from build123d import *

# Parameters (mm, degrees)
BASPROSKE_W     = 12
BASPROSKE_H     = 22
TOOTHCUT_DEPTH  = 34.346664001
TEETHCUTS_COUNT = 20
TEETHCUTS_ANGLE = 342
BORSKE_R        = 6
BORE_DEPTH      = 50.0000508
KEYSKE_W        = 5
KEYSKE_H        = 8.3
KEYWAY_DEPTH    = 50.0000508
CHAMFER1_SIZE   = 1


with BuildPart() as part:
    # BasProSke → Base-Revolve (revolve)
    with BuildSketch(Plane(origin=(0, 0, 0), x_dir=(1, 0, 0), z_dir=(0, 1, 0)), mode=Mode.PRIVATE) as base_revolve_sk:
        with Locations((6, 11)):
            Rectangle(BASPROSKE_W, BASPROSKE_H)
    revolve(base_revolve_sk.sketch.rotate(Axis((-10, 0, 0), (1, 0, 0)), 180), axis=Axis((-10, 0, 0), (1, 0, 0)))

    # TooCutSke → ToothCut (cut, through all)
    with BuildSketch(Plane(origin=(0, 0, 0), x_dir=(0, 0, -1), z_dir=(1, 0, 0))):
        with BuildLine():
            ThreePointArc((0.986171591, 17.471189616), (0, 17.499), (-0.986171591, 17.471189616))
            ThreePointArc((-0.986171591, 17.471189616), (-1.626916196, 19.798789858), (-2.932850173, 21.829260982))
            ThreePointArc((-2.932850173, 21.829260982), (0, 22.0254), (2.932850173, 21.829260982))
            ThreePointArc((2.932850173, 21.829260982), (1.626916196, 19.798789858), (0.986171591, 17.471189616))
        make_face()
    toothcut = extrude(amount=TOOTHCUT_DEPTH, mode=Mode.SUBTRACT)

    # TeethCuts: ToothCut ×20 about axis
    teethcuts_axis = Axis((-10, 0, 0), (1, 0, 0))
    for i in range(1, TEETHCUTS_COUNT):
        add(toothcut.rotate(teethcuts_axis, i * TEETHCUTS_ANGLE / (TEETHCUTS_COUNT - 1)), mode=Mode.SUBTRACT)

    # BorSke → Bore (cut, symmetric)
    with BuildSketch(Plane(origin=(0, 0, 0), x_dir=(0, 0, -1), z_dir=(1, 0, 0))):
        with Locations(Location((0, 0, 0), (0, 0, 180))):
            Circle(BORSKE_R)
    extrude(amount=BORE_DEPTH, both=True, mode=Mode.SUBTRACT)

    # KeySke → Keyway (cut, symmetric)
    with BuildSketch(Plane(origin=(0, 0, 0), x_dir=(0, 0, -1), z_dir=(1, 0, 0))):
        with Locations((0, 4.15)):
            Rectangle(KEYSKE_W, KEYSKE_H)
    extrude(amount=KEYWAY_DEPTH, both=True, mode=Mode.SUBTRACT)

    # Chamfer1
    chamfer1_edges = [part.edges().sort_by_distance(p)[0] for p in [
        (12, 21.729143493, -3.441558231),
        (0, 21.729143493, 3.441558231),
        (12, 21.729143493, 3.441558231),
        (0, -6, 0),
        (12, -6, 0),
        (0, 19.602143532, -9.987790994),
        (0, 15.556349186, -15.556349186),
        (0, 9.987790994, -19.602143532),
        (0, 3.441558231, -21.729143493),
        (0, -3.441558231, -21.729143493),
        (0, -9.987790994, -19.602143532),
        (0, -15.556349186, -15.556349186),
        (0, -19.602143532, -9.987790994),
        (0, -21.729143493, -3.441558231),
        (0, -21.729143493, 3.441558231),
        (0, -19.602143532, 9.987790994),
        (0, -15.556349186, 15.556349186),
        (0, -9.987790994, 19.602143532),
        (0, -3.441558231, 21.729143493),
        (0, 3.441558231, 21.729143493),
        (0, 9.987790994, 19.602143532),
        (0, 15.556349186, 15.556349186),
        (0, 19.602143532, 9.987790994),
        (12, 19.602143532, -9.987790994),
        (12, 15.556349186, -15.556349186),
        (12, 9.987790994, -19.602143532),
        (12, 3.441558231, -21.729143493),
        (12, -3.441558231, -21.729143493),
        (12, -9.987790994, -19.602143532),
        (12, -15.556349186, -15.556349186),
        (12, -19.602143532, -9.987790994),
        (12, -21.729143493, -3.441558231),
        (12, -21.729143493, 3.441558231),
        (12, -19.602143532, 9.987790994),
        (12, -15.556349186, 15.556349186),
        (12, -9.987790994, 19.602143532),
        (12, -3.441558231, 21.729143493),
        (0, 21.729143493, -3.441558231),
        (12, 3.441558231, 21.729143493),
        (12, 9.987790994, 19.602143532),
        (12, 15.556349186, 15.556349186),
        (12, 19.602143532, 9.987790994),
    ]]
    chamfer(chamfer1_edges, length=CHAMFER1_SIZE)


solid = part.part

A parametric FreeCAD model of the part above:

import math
import FreeCAD as App
import Part
import Sketcher

V = App.Vector


def edges_at(feature, points):
    """Names of the edges that pass closest to the given points."""
    edges = feature.Shape.Edges
    near = lambda p: min(range(len(edges)), key=lambda i: edges[i].distToShape(Part.Vertex(*p))[0])
    return sorted({f"Edge{near(p) + 1}" for p in points})


def add_polygon(sketch, points):
    """Adds a closed chain of lines whose ends are joined by coincident constraints."""
    first, n = sketch.GeometryCount, len(points)
    for a, b in zip(points, points[1:] + points[:1]):
        sketch.addGeometry(Part.LineSegment(App.Vector(*a, 0), App.Vector(*b, 0)), False)
    for i in range(n):
        sketch.addConstraint(Sketcher.Constraint("Coincident", first + i, 2, first + (i + 1) % n, 1))

doc = App.newDocument("Part")
body = doc.addObject("PartDesign::Body", "Body")

# Sketch on XZ plane
sketch1 = body.newObject("Sketcher::SketchObject", "Sketch")
sketch1.AttachmentSupport = (doc.getObject("XZ_Plane"), [""])
sketch1.MapMode = "FlatFace"
add_polygon(sketch1, [(0, -22), (0, 0), (12, 0), (12, -22)])  # lines 0-3
sketch1.addConstraint(Sketcher.Constraint("Vertical", 0))
sketch1.addConstraint(Sketcher.Constraint("Horizontal", 1))
sketch1.addConstraint(Sketcher.Constraint("Vertical", 2))
sketch1.addConstraint(Sketcher.Constraint("Horizontal", 3))
sketch1.addConstraint(Sketcher.Constraint("Coincident", 0, 2, -1, 1))
sketch1.addConstraint(Sketcher.Constraint("DistanceX", 1, 1, 1, 2, 12.0))
sketch1.addConstraint(Sketcher.Constraint("DistanceY", 0, 1, 0, 2, 22.0))
revolution = body.newObject("PartDesign::Revolution", "Revolution")
revolution.Profile = sketch1
revolution.ReferenceAxis = (sketch1, ["H_Axis"])
revolution.Angle = 360

# Sketch on YZ plane
sketch2 = body.newObject("Sketcher::SketchObject", "Sketch001")
sketch2.AttachmentSupport = (doc.getObject("YZ_Plane"), [""])
sketch2.MapMode = "FlatFace"
sketch2.addGeometry(Part.ArcOfCircle(Part.Circle(V(0, 0, 0), V(0, 0, 1), 17.5), math.radians(-3.23), math.radians(3.23)), False)
sketch2.addGeometry(Part.ArcOfCircle(Part.Circle(V(16.5, -8.9, 0), V(0, 0, 1), 8), math.radians(49), math.radians(83)), False)
sketch2.addGeometry(Part.ArcOfCircle(Part.Circle(V(0, 0, 0), V(0, 0, 1), 22), math.radians(-7.65), math.radians(7.65)), False)
sketch2.addGeometry(Part.ArcOfCircle(Part.Circle(V(16.5, 8.9, 0), V(0, 0, 1), 8), math.radians(-83), math.radians(-49)), False)
sketch2.addConstraint(Sketcher.Constraint("Coincident", 0, 1, 1, 2))
sketch2.addConstraint(Sketcher.Constraint("Coincident", 1, 1, 2, 1))
sketch2.addConstraint(Sketcher.Constraint("Coincident", 2, 2, 3, 2))
sketch2.addConstraint(Sketcher.Constraint("Coincident", 3, 1, 0, 2))
sketch2.addConstraint(Sketcher.Constraint("Coincident", 0, 3, -1, 1))
sketch2.addConstraint(Sketcher.Constraint("Coincident", 2, 3, -1, 1))
sketch2.addConstraint(Sketcher.Constraint("Equal", 1, 3))
sketch2.addConstraint(Sketcher.Constraint("Symmetric", 1, 3, 3, 3, -1))
sketch2.addConstraint(Sketcher.Constraint("Radius", 1, 8.0))
sketch2.addConstraint(Sketcher.Constraint("Radius", 0, 17.499))
sketch2.addConstraint(Sketcher.Constraint("Radius", 2, 22.0254))
sketch2.addConstraint(Sketcher.Constraint("DistanceY", 1, 1, 2, 2, 5.8657))
sketch2.addConstraint(Sketcher.Constraint("DistanceX", -1, 1, 1, 3, 16.536031))
pocket1 = body.newObject("PartDesign::Pocket", "Pocket")
pocket1.Profile = sketch2
pocket1.Type = "ThroughAll"
pocket1.Reversed = True
doc.recompute()

polarpattern = body.newObject("PartDesign::PolarPattern", "PolarPattern")
polarpattern.Originals = [pocket1]
polarpattern.Axis = (doc.getObject("X_Axis"), [""])
polarpattern.Angle = 360
polarpattern.Occurrences = 20
body.Tip = polarpattern

# Sketch on YZ plane
sketch3 = body.newObject("Sketcher::SketchObject", "Sketch002")
sketch3.AttachmentSupport = (doc.getObject("YZ_Plane"), [""])
sketch3.MapMode = "FlatFace"
sketch3.addGeometry(Part.Circle(V(0, 0, 0), V(0, 0, 1), 6), False)
sketch3.addConstraint(Sketcher.Constraint("Coincident", 0, 3, -1, 1))
sketch3.addConstraint(Sketcher.Constraint("Diameter", 0, 12.0))
pocket2 = body.newObject("PartDesign::Pocket", "Pocket001")
pocket2.Profile = sketch3
pocket2.Length = 100.000102
pocket2.Midplane = True

# Sketch on YZ plane
sketch4 = body.newObject("Sketcher::SketchObject", "Sketch003")
sketch4.AttachmentSupport = (doc.getObject("YZ_Plane"), [""])
sketch4.MapMode = "FlatFace"
add_polygon(sketch4, [(8, 2), (0, 2), (0, -2), (8, -2)])  # lines 0-3
sketch4.addConstraint(Sketcher.Constraint("Horizontal", 0))
sketch4.addConstraint(Sketcher.Constraint("Vertical", 1))
sketch4.addConstraint(Sketcher.Constraint("Horizontal", 2))
sketch4.addConstraint(Sketcher.Constraint("Vertical", 3))
sketch4.addConstraint(Sketcher.Constraint("Symmetric", 0, 2, 1, 2, -1, 1))
sketch4.addConstraint(Sketcher.Constraint("DistanceY", 1, 2, 1, 1, 5.0))
sketch4.addConstraint(Sketcher.Constraint("DistanceX", 0, 2, 0, 1, 8.3))
pocket3 = body.newObject("PartDesign::Pocket", "Pocket002")
pocket3.Profile = sketch4
pocket3.Length = 100.000102
pocket3.Midplane = True
doc.recompute()

chamfer = body.newObject("PartDesign::Chamfer", "Chamfer")
chamfer.Base = (pocket3, edges_at(pocket3, [
    (12, 21.729, -3.442),
    (0, 21.729, 3.442),
    (12, 21.729, 3.442),
    (0, -6, 0),
    (12, -6, 0),
    (0, 19.602, -9.988),
    (0, 15.556, -15.556),
    (0, 9.988, -19.602),
    (0, 3.442, -21.729),
    (0, -3.442, -21.729),
    (0, -9.988, -19.602),
    (0, -15.556, -15.556),
    (0, -19.602, -9.988),
    (0, -21.729, -3.442),
    (0, -21.729, 3.442),
    (0, -19.602, 9.988),
    (0, -15.556, 15.556),
    (0, -9.988, 19.602),
    (0, -3.442, 21.729),
    (0, 3.442, 21.729),
    (0, 9.988, 19.602),
    (0, 15.556, 15.556),
    (0, 19.602, 9.988),
    (12, 19.602, -9.988),
    (12, 15.556, -15.556),
    (12, 9.988, -19.602),
    (12, 3.442, -21.729),
    (12, -3.442, -21.729),
    (12, -9.988, -19.602),
    (12, -15.556, -15.556),
    (12, -19.602, -9.988),
    (12, -21.729, -3.442),
    (12, -21.729, 3.442),
    (12, -19.602, 9.988),
    (12, -15.556, 15.556),
    (12, -9.988, 19.602),
    (12, -3.442, 21.729),
    (0, 21.729, -3.442),
    (12, 3.442, 21.729),
    (12, 9.988, 19.602),
    (12, 15.556, 15.556),
    (12, 19.602, 9.988),
]))
chamfer.Size = 1

doc.recompute()
